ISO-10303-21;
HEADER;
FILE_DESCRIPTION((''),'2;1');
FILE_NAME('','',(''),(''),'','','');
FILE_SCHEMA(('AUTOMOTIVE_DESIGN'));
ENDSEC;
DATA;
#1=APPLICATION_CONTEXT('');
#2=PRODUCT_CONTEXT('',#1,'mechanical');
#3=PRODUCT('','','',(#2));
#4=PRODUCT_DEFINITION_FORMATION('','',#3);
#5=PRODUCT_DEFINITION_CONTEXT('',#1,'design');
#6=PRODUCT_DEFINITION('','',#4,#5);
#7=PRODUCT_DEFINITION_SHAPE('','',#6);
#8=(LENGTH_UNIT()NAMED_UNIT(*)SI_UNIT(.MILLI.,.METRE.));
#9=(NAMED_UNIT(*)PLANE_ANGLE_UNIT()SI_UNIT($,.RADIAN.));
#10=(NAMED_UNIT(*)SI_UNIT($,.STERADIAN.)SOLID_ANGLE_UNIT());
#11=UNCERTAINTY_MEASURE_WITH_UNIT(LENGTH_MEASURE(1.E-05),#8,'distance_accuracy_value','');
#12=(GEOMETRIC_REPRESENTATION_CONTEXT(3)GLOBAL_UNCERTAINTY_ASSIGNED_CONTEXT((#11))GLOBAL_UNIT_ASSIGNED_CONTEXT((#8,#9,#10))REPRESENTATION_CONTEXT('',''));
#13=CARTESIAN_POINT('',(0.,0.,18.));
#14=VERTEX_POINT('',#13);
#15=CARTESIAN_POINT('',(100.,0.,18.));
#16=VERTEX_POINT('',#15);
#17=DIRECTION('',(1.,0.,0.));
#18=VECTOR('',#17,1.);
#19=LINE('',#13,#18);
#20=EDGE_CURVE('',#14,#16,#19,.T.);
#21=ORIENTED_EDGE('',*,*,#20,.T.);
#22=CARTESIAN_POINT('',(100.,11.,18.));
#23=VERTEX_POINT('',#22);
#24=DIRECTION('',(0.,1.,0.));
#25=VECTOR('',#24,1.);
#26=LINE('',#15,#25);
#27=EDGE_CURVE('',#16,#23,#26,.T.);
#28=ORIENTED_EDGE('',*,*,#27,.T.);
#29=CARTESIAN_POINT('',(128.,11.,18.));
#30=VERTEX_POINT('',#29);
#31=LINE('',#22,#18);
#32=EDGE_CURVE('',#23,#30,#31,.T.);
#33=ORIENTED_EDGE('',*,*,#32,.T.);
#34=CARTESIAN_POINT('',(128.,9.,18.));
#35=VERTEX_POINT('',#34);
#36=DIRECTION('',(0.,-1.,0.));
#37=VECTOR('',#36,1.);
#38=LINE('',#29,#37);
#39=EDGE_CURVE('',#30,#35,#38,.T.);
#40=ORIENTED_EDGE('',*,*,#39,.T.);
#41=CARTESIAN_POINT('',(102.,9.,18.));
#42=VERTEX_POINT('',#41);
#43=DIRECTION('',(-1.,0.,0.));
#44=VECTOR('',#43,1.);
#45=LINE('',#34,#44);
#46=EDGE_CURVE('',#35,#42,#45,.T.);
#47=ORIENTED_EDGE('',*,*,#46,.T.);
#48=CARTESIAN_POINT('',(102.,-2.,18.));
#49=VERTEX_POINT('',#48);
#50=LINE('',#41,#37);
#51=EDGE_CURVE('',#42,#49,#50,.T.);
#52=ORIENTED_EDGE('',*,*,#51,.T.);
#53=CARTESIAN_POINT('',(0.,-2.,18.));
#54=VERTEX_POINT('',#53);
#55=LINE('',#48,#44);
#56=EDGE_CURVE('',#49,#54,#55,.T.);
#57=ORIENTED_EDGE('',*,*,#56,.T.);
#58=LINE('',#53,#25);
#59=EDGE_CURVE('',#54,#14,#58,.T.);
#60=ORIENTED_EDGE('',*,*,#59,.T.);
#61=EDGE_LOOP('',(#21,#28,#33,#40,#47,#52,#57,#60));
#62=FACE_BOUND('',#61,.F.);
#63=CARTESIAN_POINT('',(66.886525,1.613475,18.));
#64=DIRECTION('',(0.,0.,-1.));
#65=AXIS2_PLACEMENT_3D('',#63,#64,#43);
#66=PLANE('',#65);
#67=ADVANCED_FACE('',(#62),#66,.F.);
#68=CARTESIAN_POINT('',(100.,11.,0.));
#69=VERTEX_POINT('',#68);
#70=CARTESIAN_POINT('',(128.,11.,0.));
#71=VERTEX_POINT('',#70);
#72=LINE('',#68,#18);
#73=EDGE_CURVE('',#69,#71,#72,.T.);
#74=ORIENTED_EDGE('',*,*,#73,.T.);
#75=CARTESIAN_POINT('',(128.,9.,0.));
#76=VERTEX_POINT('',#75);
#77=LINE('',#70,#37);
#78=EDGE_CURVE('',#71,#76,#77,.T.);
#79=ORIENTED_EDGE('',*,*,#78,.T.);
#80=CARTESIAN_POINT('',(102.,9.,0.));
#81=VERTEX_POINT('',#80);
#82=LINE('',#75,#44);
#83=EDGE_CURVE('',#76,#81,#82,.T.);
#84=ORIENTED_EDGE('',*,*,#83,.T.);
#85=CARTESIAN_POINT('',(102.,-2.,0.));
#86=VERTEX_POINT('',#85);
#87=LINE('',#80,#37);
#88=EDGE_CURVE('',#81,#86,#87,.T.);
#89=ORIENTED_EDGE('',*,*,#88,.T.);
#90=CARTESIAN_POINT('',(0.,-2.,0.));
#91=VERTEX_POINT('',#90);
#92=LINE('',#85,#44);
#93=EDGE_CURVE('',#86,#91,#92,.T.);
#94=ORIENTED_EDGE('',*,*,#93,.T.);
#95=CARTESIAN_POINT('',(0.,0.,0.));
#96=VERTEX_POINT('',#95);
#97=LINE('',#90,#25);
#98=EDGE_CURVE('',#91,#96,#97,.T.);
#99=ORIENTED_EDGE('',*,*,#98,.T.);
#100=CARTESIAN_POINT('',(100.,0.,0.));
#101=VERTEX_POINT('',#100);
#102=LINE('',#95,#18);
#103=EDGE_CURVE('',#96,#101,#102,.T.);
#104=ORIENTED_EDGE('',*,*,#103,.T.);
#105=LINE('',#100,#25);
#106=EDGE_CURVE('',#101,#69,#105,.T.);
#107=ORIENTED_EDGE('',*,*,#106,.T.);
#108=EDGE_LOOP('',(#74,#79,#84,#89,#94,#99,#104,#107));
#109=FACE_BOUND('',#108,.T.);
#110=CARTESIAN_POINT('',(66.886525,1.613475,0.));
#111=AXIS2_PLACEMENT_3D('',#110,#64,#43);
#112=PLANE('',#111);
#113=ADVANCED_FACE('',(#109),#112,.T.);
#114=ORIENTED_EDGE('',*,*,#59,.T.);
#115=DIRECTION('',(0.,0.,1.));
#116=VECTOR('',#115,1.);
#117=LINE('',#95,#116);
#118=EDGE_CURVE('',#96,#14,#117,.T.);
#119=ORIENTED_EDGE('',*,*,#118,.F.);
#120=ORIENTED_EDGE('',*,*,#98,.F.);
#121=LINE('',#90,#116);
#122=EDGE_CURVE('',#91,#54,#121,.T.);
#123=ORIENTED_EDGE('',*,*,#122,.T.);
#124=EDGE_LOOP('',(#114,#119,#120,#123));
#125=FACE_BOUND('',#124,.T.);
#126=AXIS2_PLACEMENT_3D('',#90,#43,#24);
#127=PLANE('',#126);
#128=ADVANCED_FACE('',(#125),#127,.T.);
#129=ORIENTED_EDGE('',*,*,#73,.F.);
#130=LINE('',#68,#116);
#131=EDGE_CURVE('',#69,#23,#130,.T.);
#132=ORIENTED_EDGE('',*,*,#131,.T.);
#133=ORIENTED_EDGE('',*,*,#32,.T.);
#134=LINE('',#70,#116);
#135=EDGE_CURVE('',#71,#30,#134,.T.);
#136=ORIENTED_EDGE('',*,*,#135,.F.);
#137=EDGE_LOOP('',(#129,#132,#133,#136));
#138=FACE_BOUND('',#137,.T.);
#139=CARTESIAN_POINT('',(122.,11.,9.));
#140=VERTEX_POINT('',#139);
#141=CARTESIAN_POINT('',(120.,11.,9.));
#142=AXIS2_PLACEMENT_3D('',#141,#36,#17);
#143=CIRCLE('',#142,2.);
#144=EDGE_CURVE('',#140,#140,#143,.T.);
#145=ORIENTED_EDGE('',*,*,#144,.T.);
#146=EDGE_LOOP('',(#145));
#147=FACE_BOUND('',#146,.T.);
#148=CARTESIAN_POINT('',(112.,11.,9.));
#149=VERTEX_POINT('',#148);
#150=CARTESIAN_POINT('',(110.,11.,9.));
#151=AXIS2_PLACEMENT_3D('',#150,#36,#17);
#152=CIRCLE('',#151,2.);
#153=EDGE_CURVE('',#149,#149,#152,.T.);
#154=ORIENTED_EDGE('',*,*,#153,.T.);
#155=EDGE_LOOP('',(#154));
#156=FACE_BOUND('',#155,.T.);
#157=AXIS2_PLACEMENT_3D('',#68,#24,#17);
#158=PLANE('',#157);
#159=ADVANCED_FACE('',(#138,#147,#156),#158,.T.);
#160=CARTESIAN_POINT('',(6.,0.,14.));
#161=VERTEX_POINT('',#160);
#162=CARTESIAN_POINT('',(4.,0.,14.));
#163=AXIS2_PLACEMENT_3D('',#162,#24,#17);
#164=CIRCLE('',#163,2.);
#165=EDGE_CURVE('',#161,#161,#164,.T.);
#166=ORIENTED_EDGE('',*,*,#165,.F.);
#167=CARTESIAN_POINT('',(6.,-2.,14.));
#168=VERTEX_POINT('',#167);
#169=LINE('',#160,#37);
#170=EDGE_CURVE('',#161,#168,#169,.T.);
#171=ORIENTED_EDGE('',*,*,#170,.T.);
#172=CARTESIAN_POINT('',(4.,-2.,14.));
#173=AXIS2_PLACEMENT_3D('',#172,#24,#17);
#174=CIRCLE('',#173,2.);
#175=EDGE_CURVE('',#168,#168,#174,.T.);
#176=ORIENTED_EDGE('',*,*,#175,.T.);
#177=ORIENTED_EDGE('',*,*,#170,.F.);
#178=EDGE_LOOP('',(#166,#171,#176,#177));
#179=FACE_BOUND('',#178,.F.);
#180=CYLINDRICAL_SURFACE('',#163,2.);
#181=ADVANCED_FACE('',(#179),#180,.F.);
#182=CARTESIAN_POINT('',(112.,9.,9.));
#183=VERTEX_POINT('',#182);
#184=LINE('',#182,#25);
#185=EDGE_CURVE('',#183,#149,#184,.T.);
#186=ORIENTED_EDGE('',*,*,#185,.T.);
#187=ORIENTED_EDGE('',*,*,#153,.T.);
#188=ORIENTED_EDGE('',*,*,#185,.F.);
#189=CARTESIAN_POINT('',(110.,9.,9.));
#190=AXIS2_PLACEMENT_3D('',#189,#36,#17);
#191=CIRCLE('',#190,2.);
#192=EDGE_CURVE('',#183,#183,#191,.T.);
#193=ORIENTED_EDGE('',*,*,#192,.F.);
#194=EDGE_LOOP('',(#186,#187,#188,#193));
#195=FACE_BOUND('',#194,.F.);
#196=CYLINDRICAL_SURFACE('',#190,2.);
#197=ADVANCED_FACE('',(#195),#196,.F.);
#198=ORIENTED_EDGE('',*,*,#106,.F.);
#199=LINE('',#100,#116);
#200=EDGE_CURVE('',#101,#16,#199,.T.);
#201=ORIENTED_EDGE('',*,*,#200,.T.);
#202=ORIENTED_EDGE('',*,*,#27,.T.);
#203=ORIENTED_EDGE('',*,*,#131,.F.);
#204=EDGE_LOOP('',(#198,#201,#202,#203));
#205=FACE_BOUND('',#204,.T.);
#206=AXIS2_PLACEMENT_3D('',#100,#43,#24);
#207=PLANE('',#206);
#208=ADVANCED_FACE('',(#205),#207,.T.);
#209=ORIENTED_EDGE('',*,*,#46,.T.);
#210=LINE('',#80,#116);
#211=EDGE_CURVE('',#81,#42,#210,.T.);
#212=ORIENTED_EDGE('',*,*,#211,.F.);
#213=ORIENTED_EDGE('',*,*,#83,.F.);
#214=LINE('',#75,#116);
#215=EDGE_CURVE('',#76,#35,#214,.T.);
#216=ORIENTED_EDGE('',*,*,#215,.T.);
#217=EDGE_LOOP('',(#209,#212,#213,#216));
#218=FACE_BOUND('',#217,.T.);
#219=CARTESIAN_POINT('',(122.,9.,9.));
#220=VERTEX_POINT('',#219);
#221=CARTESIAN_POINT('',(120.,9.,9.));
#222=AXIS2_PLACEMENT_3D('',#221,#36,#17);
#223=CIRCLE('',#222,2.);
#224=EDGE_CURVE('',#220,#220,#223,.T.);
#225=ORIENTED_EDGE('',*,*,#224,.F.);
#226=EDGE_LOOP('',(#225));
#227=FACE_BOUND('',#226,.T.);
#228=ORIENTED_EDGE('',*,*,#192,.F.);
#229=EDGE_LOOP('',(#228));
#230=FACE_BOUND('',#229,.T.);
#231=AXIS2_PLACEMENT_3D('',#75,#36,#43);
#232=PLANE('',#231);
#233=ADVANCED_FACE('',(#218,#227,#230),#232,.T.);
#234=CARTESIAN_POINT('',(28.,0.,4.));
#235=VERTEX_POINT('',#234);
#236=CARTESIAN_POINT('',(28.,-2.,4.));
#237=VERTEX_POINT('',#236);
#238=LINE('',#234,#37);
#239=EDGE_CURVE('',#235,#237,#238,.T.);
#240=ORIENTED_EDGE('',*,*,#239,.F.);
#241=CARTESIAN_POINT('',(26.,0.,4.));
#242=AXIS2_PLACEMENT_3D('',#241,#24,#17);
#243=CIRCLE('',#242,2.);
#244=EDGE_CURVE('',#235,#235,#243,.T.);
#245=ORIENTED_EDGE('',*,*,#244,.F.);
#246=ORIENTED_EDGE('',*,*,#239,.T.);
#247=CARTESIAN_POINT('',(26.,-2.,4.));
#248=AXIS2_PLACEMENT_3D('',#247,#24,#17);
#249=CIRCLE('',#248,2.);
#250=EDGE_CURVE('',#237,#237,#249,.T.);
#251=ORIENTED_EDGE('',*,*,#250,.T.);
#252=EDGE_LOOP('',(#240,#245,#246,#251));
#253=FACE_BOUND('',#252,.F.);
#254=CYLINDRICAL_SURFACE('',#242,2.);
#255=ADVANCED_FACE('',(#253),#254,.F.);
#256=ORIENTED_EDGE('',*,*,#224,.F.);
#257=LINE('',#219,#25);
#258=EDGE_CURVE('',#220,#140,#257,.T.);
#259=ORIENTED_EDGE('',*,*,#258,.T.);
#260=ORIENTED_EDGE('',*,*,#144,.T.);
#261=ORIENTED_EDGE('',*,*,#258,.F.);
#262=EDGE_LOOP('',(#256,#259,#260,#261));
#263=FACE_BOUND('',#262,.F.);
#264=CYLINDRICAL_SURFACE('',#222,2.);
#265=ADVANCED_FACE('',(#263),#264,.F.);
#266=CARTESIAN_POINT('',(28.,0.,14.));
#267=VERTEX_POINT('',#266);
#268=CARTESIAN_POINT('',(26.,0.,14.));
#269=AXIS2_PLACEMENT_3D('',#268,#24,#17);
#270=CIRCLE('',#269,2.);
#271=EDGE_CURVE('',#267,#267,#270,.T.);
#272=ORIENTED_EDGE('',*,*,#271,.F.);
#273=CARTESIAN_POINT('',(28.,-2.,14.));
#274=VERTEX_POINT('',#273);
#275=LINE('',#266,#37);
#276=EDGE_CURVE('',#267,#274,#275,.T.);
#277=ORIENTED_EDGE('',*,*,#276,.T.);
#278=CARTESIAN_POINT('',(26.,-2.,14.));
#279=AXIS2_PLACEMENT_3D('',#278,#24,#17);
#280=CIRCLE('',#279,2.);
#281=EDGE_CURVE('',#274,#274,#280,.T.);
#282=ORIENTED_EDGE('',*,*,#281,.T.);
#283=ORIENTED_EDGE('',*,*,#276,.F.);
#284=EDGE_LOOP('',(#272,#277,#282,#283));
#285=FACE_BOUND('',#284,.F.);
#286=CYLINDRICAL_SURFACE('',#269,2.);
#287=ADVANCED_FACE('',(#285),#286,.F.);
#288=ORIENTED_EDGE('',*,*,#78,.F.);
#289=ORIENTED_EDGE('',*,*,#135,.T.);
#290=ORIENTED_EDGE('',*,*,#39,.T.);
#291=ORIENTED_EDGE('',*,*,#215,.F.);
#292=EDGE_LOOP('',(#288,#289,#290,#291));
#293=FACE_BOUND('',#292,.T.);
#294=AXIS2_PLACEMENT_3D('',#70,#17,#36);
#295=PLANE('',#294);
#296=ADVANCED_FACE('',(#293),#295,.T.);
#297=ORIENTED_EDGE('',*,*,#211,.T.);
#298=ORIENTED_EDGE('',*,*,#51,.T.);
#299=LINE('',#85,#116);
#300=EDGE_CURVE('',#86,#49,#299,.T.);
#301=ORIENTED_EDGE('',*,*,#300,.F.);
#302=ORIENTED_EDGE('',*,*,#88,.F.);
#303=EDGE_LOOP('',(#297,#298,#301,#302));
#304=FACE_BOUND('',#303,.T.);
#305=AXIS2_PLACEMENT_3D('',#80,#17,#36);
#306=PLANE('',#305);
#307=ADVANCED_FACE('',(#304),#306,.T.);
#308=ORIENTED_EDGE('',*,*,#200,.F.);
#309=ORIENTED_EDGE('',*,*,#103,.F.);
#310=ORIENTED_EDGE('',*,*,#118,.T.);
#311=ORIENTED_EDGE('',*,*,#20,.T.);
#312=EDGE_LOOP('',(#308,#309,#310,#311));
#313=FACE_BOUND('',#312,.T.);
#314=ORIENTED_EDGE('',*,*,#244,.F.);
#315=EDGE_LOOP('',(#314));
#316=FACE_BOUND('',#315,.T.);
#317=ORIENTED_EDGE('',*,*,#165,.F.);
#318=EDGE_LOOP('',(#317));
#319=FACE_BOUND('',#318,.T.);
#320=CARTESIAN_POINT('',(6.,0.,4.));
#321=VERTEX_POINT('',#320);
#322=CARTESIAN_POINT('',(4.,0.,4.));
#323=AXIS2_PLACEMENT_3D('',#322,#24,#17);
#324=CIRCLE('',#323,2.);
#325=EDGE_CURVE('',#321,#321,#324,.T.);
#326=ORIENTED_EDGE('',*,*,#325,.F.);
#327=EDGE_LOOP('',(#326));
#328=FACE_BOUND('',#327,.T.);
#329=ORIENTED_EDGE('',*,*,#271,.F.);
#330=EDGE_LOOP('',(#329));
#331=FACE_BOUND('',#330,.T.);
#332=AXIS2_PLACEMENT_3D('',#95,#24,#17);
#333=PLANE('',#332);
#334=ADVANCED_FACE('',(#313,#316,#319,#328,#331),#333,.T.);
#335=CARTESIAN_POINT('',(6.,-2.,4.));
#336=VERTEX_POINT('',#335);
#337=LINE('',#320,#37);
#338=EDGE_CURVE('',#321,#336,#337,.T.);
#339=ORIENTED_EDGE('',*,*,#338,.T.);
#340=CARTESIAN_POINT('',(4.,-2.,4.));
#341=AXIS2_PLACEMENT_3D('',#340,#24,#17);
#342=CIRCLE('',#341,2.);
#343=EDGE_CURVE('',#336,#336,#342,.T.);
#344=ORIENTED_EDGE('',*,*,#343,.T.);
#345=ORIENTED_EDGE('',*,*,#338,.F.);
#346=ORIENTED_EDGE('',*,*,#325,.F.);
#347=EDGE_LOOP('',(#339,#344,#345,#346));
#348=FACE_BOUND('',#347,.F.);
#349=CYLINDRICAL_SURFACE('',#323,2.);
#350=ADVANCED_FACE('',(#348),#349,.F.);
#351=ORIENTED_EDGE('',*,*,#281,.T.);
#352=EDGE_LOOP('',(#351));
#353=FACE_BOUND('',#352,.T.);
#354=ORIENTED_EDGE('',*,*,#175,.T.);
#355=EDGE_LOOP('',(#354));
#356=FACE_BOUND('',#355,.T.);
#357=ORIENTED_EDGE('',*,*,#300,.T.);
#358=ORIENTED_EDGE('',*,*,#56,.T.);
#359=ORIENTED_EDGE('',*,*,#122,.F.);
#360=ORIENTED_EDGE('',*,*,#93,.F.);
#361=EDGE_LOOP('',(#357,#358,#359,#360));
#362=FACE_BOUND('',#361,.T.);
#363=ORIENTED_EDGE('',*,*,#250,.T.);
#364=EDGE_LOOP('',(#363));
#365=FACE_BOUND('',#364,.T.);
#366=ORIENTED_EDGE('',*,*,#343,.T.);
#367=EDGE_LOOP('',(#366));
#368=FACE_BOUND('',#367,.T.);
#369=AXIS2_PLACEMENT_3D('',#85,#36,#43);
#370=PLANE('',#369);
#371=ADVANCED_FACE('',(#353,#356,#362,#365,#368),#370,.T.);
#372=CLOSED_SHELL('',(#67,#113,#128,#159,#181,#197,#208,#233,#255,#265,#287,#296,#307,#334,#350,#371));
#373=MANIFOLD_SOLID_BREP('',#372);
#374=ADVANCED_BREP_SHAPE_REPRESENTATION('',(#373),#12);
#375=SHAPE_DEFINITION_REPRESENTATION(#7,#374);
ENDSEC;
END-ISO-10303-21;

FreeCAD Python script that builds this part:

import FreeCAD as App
import Part
import Sketcher

V = App.Vector
Q = App.Units.Quantity


def add_polygon(sketch, points):
    """Adds a closed chain of lines whose ends are joined by coincident constraints."""
    first, n = sketch.GeometryCount, len(points)
    for a, b in zip(points, points[1:] + points[:1]):
        sketch.addGeometry(Part.LineSegment(App.Vector(*a, 0), App.Vector(*b, 0)), False)
    for i in range(n):
        sketch.addConstraint(Sketcher.Constraint("Coincident", first + i, 2, first + (i + 1) % n, 1))

doc = App.newDocument("Part")
body = doc.addObject("PartDesign::Body", "Body")

sketch1 = body.newObject("Sketcher::SketchObject", "Sketch")
sketch1.AttachmentSupport = (doc.getObject("XY_Plane"), [""])
sketch1.MapMode = "FlatFace"
add_polygon(sketch1, [(100, 0), (0, 0), (0, -2), (102, -2), (102, 9), (128, 9), (128, 11), (100, 11)])
sketch1.addConstraint([
    Sketcher.Constraint("Horizontal", 0),
    Sketcher.Constraint("Vertical", 1),
    Sketcher.Constraint("Horizontal", 2),
    Sketcher.Constraint("Vertical", 3),
    Sketcher.Constraint("Horizontal", 4),
    Sketcher.Constraint("Vertical", 5),
    Sketcher.Constraint("Horizontal", 6),
    Sketcher.Constraint("Vertical", 7),
    Sketcher.Constraint("Coincident", 0, 2, -1, 1),
    Sketcher.Constraint("Equal", 1, 5),
    Sketcher.Constraint("DistanceX", 0, 2, 0, 1, Q("100 mm")),
    Sketcher.Constraint("DistanceX", 2, 1, 2, 2, Q("102 mm")),
    Sketcher.Constraint("DistanceX", 4, 1, 4, 2, Q("26 mm")),
    Sketcher.Constraint("DistanceY", 1, 2, 1, 1, Q("2 mm")),
    Sketcher.Constraint("DistanceY", 3, 1, 3, 2, Q("11 mm")),
])
pad1 = body.newObject("PartDesign::Pad", "Pad")
pad1.Profile = sketch1
pad1.Length = 18

sketch2 = body.newObject("Sketcher::SketchObject", "Sketch001")
sketch2.AttachmentSupport = (doc.getObject("XZ_Plane"), [""])
sketch2.MapMode = "FlatFace"
sketch2.addGeometry(Part.Circle(V(4, 14, 0), V(0, 0, 1), 2), False)
sketch2.addConstraint([
    Sketcher.Constraint("Diameter", 0, Q("4 mm")),
    Sketcher.Constraint("DistanceX", -1, 1, 0, 3, Q("4 mm")),
    Sketcher.Constraint("DistanceY", -1, 1, 0, 3, Q("14 mm")),
])
pocket1 = body.newObject("PartDesign::Pocket", "Pocket")
pocket1.Profile = sketch2
pocket1.Type = "UpToFirst"
pocket1.Reversed = True

sketch3 = body.newObject("Sketcher::SketchObject", "Sketch002")
sketch3.AttachmentSupport = (doc.getObject("XZ_Plane"), [""])
sketch3.MapMode = "FlatFace"
sketch3.addGeometry(Part.Circle(V(4, 4, 0), V(0, 0, 1), 2), False)
sketch3.addConstraint([
    Sketcher.Constraint("Diameter", 0, Q("4 mm")),
    Sketcher.Constraint("DistanceX", -1, 1, 0, 3, Q("4 mm")),
    Sketcher.Constraint("DistanceY", -1, 1, 0, 3, Q("4 mm")),
])
pocket2 = body.newObject("PartDesign::Pocket", "Pocket001")
pocket2.Profile = sketch3
pocket2.Type = "UpToFirst"
pocket2.Reversed = True

sketch4 = body.newObject("Sketcher::SketchObject", "Sketch003")
sketch4.AttachmentSupport = (doc.getObject("XZ_Plane"), [""])
sketch4.MapMode = "FlatFace"
sketch4.addGeometry(Part.Circle(V(26, 14, 0), V(0, 0, 1), 2), False)
sketch4.addConstraint([
    Sketcher.Constraint("Diameter", 0, Q("4 mm")),
    Sketcher.Constraint("DistanceX", -1, 1, 0, 3, Q("26 mm")),
    Sketcher.Constraint("DistanceY", -1, 1, 0, 3, Q("14 mm")),
])
pocket3 = body.newObject("PartDesign::Pocket", "Pocket002")
pocket3.Profile = sketch4
pocket3.Type = "UpToFirst"
pocket3.Reversed = True

sketch5 = body.newObject("Sketcher::SketchObject", "Sketch004")
sketch5.AttachmentSupport = (doc.getObject("XZ_Plane"), [""])
sketch5.MapMode = "FlatFace"
sketch5.addGeometry(Part.Circle(V(26, 4, 0), V(0, 0, 1), 2), False)
sketch5.addConstraint([
    Sketcher.Constraint("Diameter", 0, Q("4 mm")),
    Sketcher.Constraint("DistanceX", -1, 1, 0, 3, Q("26 mm")),
    Sketcher.Constraint("DistanceY", -1, 1, 0, 3, Q("4 mm")),
])
pocket4 = body.newObject("PartDesign::Pocket", "Pocket003")
pocket4.Profile = sketch5
pocket4.Type = "UpToFirst"
pocket4.Reversed = True

sketch6 = body.newObject("Sketcher::SketchObject", "Sketch005")
sketch6.AttachmentSupport = (doc.getObject("XZ_Plane"), [""])
sketch6.MapMode = "FlatFace"
sketch6.AttachmentOffset = App.Placement(V(0, 0, -9), App.Rotation())
sketch6.addGeometry(Part.Circle(V(120, 9, 0), V(0, 0, 1), 2), False)
sketch6.addConstraint([
    Sketcher.Constraint("Diameter", 0, Q("4 mm")),
    Sketcher.Constraint("DistanceX", -1, 1, 0, 3, Q("120 mm")),
    Sketcher.Constraint("DistanceY", -1, 1, 0, 3, Q("9 mm")),
])
pocket5 = body.newObject("PartDesign::Pocket", "Pocket004")
pocket5.Profile = sketch6
pocket5.Type = "UpToFirst"

sketch7 = body.newObject("Sketcher::SketchObject", "Sketch006")
sketch7.AttachmentSupport = (doc.getObject("XZ_Plane"), [""])
sketch7.MapMode = "FlatFace"
sketch7.AttachmentOffset = App.Placement(V(0, 0, -9), App.Rotation())
sketch7.addGeometry(Part.Circle(V(110, 9, 0), V(0, 0, 1), 2), False)
sketch7.addConstraint([
    Sketcher.Constraint("Diameter", 0, Q("4 mm")),
    Sketcher.Constraint("DistanceX", -1, 1, 0, 3, Q("110 mm")),
    Sketcher.Constraint("DistanceY", -1, 1, 0, 3, Q("9 mm")),
])
pocket6 = body.newObject("PartDesign::Pocket", "Pocket005")
pocket6.Profile = sketch7
pocket6.Type = "UpToFirst"

doc.recompute()
